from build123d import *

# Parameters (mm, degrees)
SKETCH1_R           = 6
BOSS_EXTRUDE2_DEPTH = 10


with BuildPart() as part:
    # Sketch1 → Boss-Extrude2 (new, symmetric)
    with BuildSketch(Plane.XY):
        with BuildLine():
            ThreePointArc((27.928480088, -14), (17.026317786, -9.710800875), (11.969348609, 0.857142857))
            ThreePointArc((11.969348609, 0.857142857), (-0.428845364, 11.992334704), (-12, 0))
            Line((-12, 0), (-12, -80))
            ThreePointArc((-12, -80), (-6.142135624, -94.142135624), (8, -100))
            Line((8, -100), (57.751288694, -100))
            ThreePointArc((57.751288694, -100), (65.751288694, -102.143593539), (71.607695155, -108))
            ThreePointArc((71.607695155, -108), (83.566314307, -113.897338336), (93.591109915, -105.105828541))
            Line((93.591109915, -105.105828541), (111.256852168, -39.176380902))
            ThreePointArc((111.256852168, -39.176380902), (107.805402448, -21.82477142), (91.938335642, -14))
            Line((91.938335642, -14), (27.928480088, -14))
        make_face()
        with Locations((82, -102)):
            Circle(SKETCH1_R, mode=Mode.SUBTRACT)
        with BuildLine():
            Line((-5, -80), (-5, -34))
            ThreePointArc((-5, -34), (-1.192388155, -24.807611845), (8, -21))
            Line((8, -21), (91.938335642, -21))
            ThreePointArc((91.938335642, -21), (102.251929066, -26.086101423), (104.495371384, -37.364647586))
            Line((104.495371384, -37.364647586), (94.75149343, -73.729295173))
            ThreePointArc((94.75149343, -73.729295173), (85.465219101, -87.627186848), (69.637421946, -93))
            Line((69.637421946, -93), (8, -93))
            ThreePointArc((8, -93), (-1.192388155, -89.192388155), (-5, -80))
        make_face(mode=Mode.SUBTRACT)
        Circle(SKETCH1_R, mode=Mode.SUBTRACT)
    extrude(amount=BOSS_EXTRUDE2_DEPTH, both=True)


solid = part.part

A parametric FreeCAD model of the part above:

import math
import FreeCAD as App
import Part
import Sketcher
Q = App.Units.Quantity

doc = App.newDocument("Part")
params = doc.addObject("Spreadsheet::Sheet", "Params")
for row, (alias, value) in enumerate([
    ("sketch1_diameter", "12 mm"),
    ("sketch1_radius", "16 mm"),
    ("sketch1_radius2", "12 mm"),
    ("sketch1_radius3", "20 mm"),
    ("sketch1_radius4", "13 mm"),
    ("pad1_length", "20 mm"),
], start=1):
    params.set(f"A{row}", alias)
    params.set(f"B{row}", "=" + value)
    params.setAlias(f"B{row}", alias)

body = doc.addObject("PartDesign::Body", "Body")

# Sketch on XY plane
sketch1 = body.newObject("Sketcher::SketchObject", "Sketch")
sketch1.AttachmentSupport = (doc.getObject("XY_Plane"), [""])
sketch1.MapMode = "FlatFace"
sketch1.addGeometry(Part.ArcOfCircle(Part.Circle(App.Vector(28, 2, 0), App.Vector(0, 0, 1), 16), math.radians(-176), math.radians(-90)), False)
sketch1.addGeometry(Part.ArcOfCircle(Part.Circle(App.Vector(0, 0, 0), App.Vector(0, 0, 1), 12), math.radians(4), math.radians(180)), False)
sketch1.addGeometry(Part.LineSegment(App.Vector(-12, 0, 0), App.Vector(-12, -80, 0)), False)
sketch1.addGeometry(Part.ArcOfCircle(Part.Circle(App.Vector(8, -80, 0), App.Vector(0, 0, 1), 20), math.radians(180), math.radians(270)), False)
sketch1.addGeometry(Part.LineSegment(App.Vector(8, -100, 0), App.Vector(58, -100, 0)), False)
sketch1.addGeometry(Part.ArcOfCircle(Part.Circle(App.Vector(58, -116, 0), App.Vector(0, 0, 1), 16), math.radians(30), math.radians(90)), False)
sketch1.addGeometry(Part.ArcOfCircle(Part.Circle(App.Vector(82, -102, 0), App.Vector(0, 0, 1), 12), math.radians(-150), math.radians(-15)), False)
sketch1.addGeometry(Part.LineSegment(App.Vector(94, -105, 0), App.Vector(111, -39, 0)), False)
sketch1.addGeometry(Part.ArcOfCircle(Part.Circle(App.Vector(92, -34, 0), App.Vector(0, 0, 1), 20), math.radians(-15), math.radians(90)), False)
sketch1.addGeometry(Part.LineSegment(App.Vector(92, -14, 0), App.Vector(28, -14, 0)), False)
sketch1.addGeometry(Part.Circle(App.Vector(82, -102, 0), App.Vector(0, 0, 1), 6), False)
sketch1.addGeometry(Part.ArcOfCircle(Part.Circle(App.Vector(8, -80, 0), App.Vector(0, 0, 1), 13), math.radians(-180), math.radians(-90)), False)
sketch1.addGeometry(Part.LineSegment(App.Vector(-5, -80, 0), App.Vector(-5, -34, 0)), False)
sketch1.addGeometry(Part.ArcOfCircle(Part.Circle(App.Vector(8, -34, 0), App.Vector(0, 0, 1), 13), math.radians(90), math.radians(180)), False)
sketch1.addGeometry(Part.LineSegment(App.Vector(8, -21, 0), App.Vector(92, -21, 0)), False)
sketch1.addGeometry(Part.ArcOfCircle(Part.Circle(App.Vector(92, -34, 0), App.Vector(0, 0, 1), 13), math.radians(-15), math.radians(90)), False)
sketch1.addGeometry(Part.LineSegment(App.Vector(104, -37, 0), App.Vector(95, -74, 0)), False)
sketch1.addGeometry(Part.ArcOfCircle(Part.Circle(App.Vector(70, -67, 0), App.Vector(0, 0, 1), 26), math.radians(-90), math.radians(-15)), False)
sketch1.addGeometry(Part.LineSegment(App.Vector(70, -93, 0), App.Vector(8, -93, 0)), False)
sketch1.addGeometry(Part.Circle(App.Vector(0, 0, 0), App.Vector(0, 0, 1), 6), False)
sketch1.addConstraint(Sketcher.Constraint("Tangent", 0, 1, 1, 1))
sketch1.addConstraint(Sketcher.Constraint("Tangent", 1, 2, 2, 1))
sketch1.addConstraint(Sketcher.Constraint("Tangent", 2, 2, 3, 1))
sketch1.addConstraint(Sketcher.Constraint("Tangent", 3, 2, 4, 1))
sketch1.addConstraint(Sketcher.Constraint("Tangent", 4, 2, 5, 2))
sketch1.addConstraint(Sketcher.Constraint("Tangent", 5, 1, 6, 1))
sketch1.addConstraint(Sketcher.Constraint("Tangent", 6, 2, 7, 1))
sketch1.addConstraint(Sketcher.Constraint("Tangent", 7, 2, 8, 1))
sketch1.addConstraint(Sketcher.Constraint("Tangent", 8, 2, 9, 1))
sketch1.addConstraint(Sketcher.Constraint("Tangent", 9, 2, 0, 2))
sketch1.addConstraint(Sketcher.Constraint("Tangent", 11, 1, 12, 1))
sketch1.addConstraint(Sketcher.Constraint("Tangent", 12, 2, 13, 2))
sketch1.addConstraint(Sketcher.Constraint("Tangent", 13, 1, 14, 1))
sketch1.addConstraint(Sketcher.Constraint("Tangent", 14, 2, 15, 2))
sketch1.addConstraint(Sketcher.Constraint("Tangent", 15, 1, 16, 1))
sketch1.addConstraint(Sketcher.Constraint("Tangent", 16, 2, 17, 2))
sketch1.addConstraint(Sketcher.Constraint("Tangent", 17, 1, 18, 1))
sketch1.addConstraint(Sketcher.Constraint("Tangent", 18, 2, 11, 2))
sketch1.addConstraint(Sketcher.Constraint("Vertical", 2))
sketch1.addConstraint(Sketcher.Constraint("Horizontal", 4))
sketch1.addConstraint(Sketcher.Constraint("Horizontal", 9))
sketch1.addConstraint(Sketcher.Constraint("Vertical", 12))
sketch1.addConstraint(Sketcher.Constraint("Horizontal", 14))
sketch1.addConstraint(Sketcher.Constraint("Horizontal", 18))
sketch1.addConstraint(Sketcher.Constraint("Coincident", 1, 3, -1, 1))
sketch1.addConstraint(Sketcher.Constraint("Coincident", 19, 3, -1, 1))
sketch1.addConstraint(Sketcher.Constraint("Coincident", 10, 3, 6, 3))
sketch1.addConstraint(Sketcher.Constraint("Coincident", 11, 3, 3, 3))
sketch1.addConstraint(Sketcher.Constraint("Coincident", 15, 3, 8, 3))
sketch1.addConstraint(Sketcher.Constraint("Equal", 0, 5))
sketch1.addConstraint(Sketcher.Constraint("Equal", 1, 6))
sketch1.addConstraint(Sketcher.Constraint("Equal", 3, 8))
sketch1.addConstraint(Sketcher.Constraint("Equal", 11, 13))
sketch1.addConstraint(Sketcher.Constraint("Equal", 13, 15))
sketch1.addConstraint(Sketcher.Constraint("Equal", 10, 19))
sketch1.addConstraint(Sketcher.Constraint("Parallel", 7, 16))
sketch1.addConstraint(Sketcher.Constraint("Diameter", 10, 12.0))
sketch1.addConstraint(Sketcher.Constraint("Radius", 0, 16.0))
sketch1.addConstraint(Sketcher.Constraint("Radius", 1, 12.0))
sketch1.addConstraint(Sketcher.Constraint("Radius", 3, 20.0))
sketch1.addConstraint(Sketcher.Constraint("Radius", 11, 13.0))
sketch1.addConstraint(Sketcher.Constraint("Radius", 17, 26.0))
sketch1.addConstraint(Sketcher.Constraint("DistanceY", 2, 2, 2, 1, 80.0))
sketch1.addConstraint(Sketcher.Constraint("DistanceY", 12, 1, 12, 2, 46.0))
sketch1.addConstraint(Sketcher.Constraint("Angle", 7, Q("75 deg")))
sketch1.addConstraint(Sketcher.Constraint("DistanceX", -1, 1, 6, 3, 82.0))
sketch1.addConstraint(Sketcher.Constraint("DistanceY", 6, 3, -1, 1, 102.0))
sketch1.setExpression("Constraints[36]", "Params.sketch1_diameter")
sketch1.setExpression("Constraints[37]", "Params.sketch1_radius")
sketch1.setExpression("Constraints[38]", "Params.sketch1_radius2")
sketch1.setExpression("Constraints[39]", "Params.sketch1_radius3")
sketch1.setExpression("Constraints[40]", "Params.sketch1_radius4")
pad1 = body.newObject("PartDesign::Pad", "Pad")
pad1.Profile = sketch1
pad1.setExpression("Length", "Params.pad1_length")
pad1.Midplane = True

doc.recompute()
